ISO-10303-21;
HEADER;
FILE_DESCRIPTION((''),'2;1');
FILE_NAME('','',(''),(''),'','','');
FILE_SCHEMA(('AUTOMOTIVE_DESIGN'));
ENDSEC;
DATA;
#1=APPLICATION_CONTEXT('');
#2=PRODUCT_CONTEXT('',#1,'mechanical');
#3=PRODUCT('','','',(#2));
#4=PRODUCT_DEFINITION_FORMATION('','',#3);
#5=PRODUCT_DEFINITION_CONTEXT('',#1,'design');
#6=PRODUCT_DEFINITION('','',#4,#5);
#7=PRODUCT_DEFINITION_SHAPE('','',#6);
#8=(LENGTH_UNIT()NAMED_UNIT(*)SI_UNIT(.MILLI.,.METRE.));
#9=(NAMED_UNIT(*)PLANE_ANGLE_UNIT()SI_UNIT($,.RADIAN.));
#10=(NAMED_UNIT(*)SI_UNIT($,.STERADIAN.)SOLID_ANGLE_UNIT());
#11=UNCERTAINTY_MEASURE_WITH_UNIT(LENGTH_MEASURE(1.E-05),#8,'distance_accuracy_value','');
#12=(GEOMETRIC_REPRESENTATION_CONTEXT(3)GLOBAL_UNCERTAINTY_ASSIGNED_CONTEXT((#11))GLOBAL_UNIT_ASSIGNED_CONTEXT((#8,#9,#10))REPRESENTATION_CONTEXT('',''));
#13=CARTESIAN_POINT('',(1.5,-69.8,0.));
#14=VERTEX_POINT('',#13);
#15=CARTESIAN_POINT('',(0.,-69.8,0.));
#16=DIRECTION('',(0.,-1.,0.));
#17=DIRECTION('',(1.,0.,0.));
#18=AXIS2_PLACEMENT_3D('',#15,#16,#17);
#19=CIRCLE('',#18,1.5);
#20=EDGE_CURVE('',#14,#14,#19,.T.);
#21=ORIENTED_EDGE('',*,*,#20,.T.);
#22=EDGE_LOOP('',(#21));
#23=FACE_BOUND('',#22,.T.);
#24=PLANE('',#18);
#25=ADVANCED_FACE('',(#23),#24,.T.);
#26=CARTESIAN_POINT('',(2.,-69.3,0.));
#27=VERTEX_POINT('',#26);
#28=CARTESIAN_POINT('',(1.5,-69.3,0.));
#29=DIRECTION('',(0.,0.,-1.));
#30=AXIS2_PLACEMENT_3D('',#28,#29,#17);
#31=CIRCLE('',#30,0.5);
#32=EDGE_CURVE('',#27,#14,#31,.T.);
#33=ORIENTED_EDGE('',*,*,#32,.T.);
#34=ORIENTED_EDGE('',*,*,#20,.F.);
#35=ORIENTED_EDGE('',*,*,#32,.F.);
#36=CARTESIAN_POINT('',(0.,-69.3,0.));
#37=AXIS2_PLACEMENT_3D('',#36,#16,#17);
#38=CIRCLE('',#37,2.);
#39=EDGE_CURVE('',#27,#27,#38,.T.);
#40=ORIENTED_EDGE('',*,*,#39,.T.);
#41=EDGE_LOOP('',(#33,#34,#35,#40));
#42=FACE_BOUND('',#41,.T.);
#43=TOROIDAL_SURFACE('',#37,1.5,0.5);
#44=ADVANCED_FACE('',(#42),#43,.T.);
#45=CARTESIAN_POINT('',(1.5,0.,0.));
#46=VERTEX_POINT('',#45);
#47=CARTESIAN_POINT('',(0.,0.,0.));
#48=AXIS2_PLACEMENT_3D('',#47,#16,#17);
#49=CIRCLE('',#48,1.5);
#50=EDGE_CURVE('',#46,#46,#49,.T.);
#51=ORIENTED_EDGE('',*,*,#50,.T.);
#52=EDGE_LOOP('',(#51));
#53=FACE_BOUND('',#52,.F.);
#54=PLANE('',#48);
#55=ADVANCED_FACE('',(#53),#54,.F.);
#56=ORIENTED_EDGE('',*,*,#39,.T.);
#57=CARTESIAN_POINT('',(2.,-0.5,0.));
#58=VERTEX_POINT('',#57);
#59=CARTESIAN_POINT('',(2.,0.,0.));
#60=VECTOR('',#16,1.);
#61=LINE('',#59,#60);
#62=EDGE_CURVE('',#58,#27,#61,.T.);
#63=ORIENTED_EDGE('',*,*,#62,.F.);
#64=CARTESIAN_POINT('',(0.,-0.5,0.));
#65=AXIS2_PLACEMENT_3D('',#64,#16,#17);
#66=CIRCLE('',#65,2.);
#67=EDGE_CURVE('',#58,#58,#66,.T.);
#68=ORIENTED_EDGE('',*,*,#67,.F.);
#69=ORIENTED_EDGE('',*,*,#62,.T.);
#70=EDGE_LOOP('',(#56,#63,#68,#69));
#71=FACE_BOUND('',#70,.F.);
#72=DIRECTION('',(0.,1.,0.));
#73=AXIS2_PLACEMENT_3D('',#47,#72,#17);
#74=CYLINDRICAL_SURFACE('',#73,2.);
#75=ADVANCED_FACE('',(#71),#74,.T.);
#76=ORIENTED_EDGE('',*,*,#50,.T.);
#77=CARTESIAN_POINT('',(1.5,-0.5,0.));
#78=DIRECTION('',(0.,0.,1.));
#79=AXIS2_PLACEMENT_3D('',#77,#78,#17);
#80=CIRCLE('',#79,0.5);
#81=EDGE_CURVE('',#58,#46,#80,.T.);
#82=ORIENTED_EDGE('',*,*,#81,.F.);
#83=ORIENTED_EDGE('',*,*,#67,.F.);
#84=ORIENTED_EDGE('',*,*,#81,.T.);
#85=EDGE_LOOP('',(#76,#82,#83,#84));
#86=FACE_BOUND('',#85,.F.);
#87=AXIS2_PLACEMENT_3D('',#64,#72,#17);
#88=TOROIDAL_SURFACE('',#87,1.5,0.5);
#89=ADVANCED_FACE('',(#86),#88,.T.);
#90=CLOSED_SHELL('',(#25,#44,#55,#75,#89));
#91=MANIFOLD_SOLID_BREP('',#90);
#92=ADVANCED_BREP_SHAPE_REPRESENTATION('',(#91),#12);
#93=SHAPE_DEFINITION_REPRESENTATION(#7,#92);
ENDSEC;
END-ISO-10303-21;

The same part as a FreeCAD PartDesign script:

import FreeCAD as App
import Part
import Sketcher


def edges_at(feature, points):
    """Names of the edges that pass closest to the given points."""
    edges = feature.Shape.Edges
    near = lambda p: min(range(len(edges)), key=lambda i: edges[i].distToShape(Part.Vertex(*p))[0])
    return sorted({f"Edge{near(p) + 1}" for p in points})

doc = App.newDocument("Part")
params = doc.addObject("Spreadsheet::Sheet", "Params")
for row, (alias, value) in enumerate([
    ("sketch1_diameter", "4 mm"),
    ("pad1_length", "69.8 mm"),
    ("fillet_radius", "0.5 mm"),
], start=1):
    params.set(f"A{row}", alias)
    params.set(f"B{row}", "=" + value)
    params.setAlias(f"B{row}", alias)

body = doc.addObject("PartDesign::Body", "Body")

sketch1 = body.newObject("Sketcher::SketchObject", "Sketch")
sketch1.AttachmentSupport = (doc.getObject("XZ_Plane"), [""])
sketch1.MapMode = "FlatFace"
sketch1.addGeometry(Part.Circle(App.Vector(0, 0, 0), App.Vector(0, 0, 1), 2), False)
sketch1.addConstraint([
    Sketcher.Constraint("Coincident", 0, 3, -1, 1),
    Sketcher.Constraint("Diameter", 0, 4.0),
])
sketch1.setExpression("Constraints[1]", "Params.sketch1_diameter")
pad1 = body.newObject("PartDesign::Pad", "Pad")
pad1.Profile = sketch1
pad1.setExpression("Length", "Params.pad1_length")
doc.recompute()

fillet = body.newObject("PartDesign::Fillet", "Fillet")
fillet.Base = (pad1, edges_at(pad1, [(-2, -69.8, 0), (-2, 0, 0)]))
fillet.setExpression("Radius", "Params.fillet_radius")

doc.recompute()
